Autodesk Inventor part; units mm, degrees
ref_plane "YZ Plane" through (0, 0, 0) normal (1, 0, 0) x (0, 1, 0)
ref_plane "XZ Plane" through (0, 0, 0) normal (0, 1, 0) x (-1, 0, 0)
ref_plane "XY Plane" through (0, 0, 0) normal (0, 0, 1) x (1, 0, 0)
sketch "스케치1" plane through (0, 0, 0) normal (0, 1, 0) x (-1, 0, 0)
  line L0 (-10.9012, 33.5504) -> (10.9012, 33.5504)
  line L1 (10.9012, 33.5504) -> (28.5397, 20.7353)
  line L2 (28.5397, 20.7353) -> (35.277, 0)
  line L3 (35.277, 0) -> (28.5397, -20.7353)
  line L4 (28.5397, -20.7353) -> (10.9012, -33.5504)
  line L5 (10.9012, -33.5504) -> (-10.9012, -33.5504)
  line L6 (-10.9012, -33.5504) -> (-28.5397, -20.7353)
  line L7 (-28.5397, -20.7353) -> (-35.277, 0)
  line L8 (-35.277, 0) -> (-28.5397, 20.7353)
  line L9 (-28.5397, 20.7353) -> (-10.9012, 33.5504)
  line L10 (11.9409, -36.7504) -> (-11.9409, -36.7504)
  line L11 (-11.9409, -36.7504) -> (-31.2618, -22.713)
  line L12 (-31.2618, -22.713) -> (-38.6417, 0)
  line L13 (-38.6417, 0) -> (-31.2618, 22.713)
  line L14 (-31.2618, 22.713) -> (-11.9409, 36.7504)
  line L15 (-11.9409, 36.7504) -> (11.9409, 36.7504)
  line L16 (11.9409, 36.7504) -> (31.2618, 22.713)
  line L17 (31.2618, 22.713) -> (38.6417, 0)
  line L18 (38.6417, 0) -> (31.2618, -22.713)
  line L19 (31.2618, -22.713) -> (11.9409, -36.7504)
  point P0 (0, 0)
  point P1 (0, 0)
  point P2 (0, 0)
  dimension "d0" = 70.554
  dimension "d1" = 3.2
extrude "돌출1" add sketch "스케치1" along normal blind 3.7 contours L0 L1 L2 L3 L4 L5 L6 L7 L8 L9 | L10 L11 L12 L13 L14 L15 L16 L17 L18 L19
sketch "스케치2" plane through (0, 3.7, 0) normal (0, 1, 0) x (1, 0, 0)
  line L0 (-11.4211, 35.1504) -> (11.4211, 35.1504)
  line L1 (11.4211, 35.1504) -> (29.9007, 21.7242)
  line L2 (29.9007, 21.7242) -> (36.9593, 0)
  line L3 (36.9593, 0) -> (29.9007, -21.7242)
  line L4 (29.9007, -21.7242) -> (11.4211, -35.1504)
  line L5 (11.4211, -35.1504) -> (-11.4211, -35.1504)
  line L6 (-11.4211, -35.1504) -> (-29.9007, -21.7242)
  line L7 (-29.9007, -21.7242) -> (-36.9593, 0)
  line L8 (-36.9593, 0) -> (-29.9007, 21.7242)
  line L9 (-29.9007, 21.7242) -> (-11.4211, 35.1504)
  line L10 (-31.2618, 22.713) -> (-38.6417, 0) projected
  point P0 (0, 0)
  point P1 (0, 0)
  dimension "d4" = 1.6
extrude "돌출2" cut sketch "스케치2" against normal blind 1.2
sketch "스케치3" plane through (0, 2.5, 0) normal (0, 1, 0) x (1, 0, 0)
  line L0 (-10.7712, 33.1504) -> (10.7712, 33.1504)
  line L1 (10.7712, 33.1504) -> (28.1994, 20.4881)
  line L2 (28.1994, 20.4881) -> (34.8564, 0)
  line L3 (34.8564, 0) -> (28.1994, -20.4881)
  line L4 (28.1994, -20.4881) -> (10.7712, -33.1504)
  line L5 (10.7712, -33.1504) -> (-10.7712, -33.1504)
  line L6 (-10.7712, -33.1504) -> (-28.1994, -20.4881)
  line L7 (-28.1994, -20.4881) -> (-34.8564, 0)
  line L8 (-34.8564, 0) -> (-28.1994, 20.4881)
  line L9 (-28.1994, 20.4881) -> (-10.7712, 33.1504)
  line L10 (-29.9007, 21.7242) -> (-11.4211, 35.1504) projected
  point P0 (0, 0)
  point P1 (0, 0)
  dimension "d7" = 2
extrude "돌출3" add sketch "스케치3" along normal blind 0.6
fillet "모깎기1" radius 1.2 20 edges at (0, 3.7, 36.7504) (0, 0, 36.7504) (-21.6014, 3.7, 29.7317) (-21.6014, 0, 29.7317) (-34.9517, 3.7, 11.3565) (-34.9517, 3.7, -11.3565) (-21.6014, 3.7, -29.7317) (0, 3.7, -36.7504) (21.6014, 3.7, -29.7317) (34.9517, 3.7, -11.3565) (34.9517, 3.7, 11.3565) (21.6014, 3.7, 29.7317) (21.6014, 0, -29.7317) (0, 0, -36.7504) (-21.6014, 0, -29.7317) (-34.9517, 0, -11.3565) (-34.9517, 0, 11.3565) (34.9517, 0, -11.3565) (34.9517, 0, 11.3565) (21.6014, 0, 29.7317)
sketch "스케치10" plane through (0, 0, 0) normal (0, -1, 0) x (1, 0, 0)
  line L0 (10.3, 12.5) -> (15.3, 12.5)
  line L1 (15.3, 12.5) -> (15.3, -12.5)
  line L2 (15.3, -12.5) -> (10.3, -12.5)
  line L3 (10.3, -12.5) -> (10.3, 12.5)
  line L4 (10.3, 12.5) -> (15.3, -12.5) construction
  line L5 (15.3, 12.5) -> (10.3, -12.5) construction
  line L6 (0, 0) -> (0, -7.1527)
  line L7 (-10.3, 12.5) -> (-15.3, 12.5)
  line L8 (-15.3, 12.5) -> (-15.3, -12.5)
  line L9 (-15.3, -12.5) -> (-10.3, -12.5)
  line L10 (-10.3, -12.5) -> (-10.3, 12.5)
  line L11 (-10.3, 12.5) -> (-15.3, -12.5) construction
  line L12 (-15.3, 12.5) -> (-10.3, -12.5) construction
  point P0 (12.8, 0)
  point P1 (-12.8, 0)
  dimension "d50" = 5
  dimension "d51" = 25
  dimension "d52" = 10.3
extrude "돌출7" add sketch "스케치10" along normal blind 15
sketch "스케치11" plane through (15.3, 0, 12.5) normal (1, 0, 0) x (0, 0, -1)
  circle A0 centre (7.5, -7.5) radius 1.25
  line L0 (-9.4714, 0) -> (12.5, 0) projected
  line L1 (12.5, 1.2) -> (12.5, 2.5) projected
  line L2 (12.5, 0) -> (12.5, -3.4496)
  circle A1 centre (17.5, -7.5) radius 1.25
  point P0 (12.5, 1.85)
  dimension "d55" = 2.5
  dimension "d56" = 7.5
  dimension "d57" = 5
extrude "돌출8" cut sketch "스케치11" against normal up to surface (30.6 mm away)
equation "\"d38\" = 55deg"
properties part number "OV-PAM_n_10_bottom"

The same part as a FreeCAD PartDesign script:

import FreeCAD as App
import Part
import Sketcher
from FreeCAD import Vector
Q = App.Units.Quantity


def edges_at(feature, points):
    """Names of the edges that pass closest to the given points."""
    edges = feature.Shape.Edges
    near = lambda p: min(range(len(edges)), key=lambda i: edges[i].distToShape(Part.Vertex(*p))[0])
    return sorted({f"Edge{near(p) + 1}" for p in points})

doc = App.newDocument("Part")
params = doc.addObject("Spreadsheet::Sheet", "Params")
for row, (alias, value) in enumerate([
    ("pad1_length", "3.7 mm"),
    ("pocket1_length", "1.2 mm"),
    ("pad2_length", "0.6 mm"),
    ("fillet_radius", "1.2 mm"),
    ("sketch4_width", "5 mm"),
    ("sketch4_height", "25 mm"),
    ("pad3_length", "15 mm"),
    ("sketch5_diameter", "2.5 mm"),
    ("pocket2_length", "30.6 mm"),
], start=1):
    params.set(f"A{row}", alias)
    params.set(f"B{row}", "=" + value)
    params.setAlias(f"B{row}", alias)

body = doc.addObject("PartDesign::Body", "Body")

# Sketch on XZ plane
sketch1 = body.newObject("Sketcher::SketchObject", "Sketch")
sketch1.AttachmentSupport = (doc.getObject("XZ_Plane"), [""])
sketch1.MapMode = "FlatFace"
sketch1.addGeometry([
    Part.LineSegment(Vector(12, -37, 0), Vector(-12, -37, 0)),  # 0
    Part.LineSegment(Vector(-12, -37, 0), Vector(-31, -23, 0)),  # 1
    Part.LineSegment(Vector(-31, -23, 0), Vector(-39, 0, 0)),  # 2
    Part.LineSegment(Vector(-39, 0, 0), Vector(-31, 23, 0)),  # 3
    Part.LineSegment(Vector(-31, 23, 0), Vector(-12, 37, 0)),  # 4
    Part.LineSegment(Vector(-12, 37, 0), Vector(12, 37, 0)),  # 5
    Part.LineSegment(Vector(12, 37, 0), Vector(31, 23, 0)),  # 6
    Part.LineSegment(Vector(31, 23, 0), Vector(39, 0, 0)),  # 7
    Part.LineSegment(Vector(39, 0, 0), Vector(31, -23, 0)),  # 8
    Part.LineSegment(Vector(31, -23, 0), Vector(12, -37, 0)),  # 9
], False)
sketch1.addConstraint([
    Sketcher.Constraint("Coincident", 0, 2, 1, 1),
    Sketcher.Constraint("Coincident", 1, 2, 2, 1),
    Sketcher.Constraint("Coincident", 2, 2, 3, 1),
    Sketcher.Constraint("Coincident", 3, 2, 4, 1),
    Sketcher.Constraint("Coincident", 4, 2, 5, 1),
    Sketcher.Constraint("Coincident", 5, 2, 6, 1),
    Sketcher.Constraint("Coincident", 6, 2, 7, 1),
    Sketcher.Constraint("Coincident", 7, 2, 8, 1),
    Sketcher.Constraint("Coincident", 8, 2, 9, 1),
    Sketcher.Constraint("Coincident", 9, 2, 0, 1),
    Sketcher.Constraint("Horizontal", 0),
    Sketcher.Constraint("Horizontal", 5),
    Sketcher.Constraint("Symmetric", 0, 2, 5, 2, -1, 1),
    Sketcher.Constraint("Symmetric", 1, 2, 6, 2, -1, 1),
    Sketcher.Constraint("Symmetric", 2, 2, 7, 2, -1, 1),
    Sketcher.Constraint("Symmetric", 3, 2, 8, 2, -1, 1),
    Sketcher.Constraint("Symmetric", 3, 2, 6, 2, -2),
    Sketcher.Constraint("PointOnObject", 2, 2, -1),
    Sketcher.Constraint("Parallel", 4, 9),
    Sketcher.Constraint("Vertical", 0, 2, 4, 2),
    Sketcher.Constraint("Equal", 1, 2),
    Sketcher.Constraint("Angle", 1, Q("144 deg")),
    Sketcher.Constraint("Angle", 2, Q("108 deg")),
    Sketcher.Constraint("DistanceX", 2, 2, 1, 2, 7.38),
    Sketcher.Constraint("DistanceX", 0, 2, 0, 1, 23.8818),
])
pad1 = body.newObject("PartDesign::Pad", "Pad")
pad1.Profile = sketch1
pad1.setExpression("Length", "Params.pad1_length")
pad1.Reversed = True

# Sketch on XZ plane
sketch2 = body.newObject("Sketcher::SketchObject", "Sketch001")
sketch2.AttachmentSupport = (doc.getObject("XZ_Plane"), [""])
sketch2.MapMode = "FlatFace"
sketch2.AttachmentOffset = App.Placement(Vector(0, 0, -3.7), App.Rotation())
sketch2.addGeometry([
    Part.LineSegment(Vector(11, -35, 0), Vector(-11, -35, 0)),  # 0
    Part.LineSegment(Vector(-11, -35, 0), Vector(-30, -22, 0)),  # 1
    Part.LineSegment(Vector(-30, -22, 0), Vector(-37, 0, 0)),  # 2
    Part.LineSegment(Vector(-37, 0, 0), Vector(-30, 22, 0)),  # 3
    Part.LineSegment(Vector(-30, 22, 0), Vector(-11, 35, 0)),  # 4
    Part.LineSegment(Vector(-11, 35, 0), Vector(11, 35, 0)),  # 5
    Part.LineSegment(Vector(11, 35, 0), Vector(30, 22, 0)),  # 6
    Part.LineSegment(Vector(30, 22, 0), Vector(37, 0, 0)),  # 7
    Part.LineSegment(Vector(37, 0, 0), Vector(30, -22, 0)),  # 8
    Part.LineSegment(Vector(30, -22, 0), Vector(11, -35, 0)),  # 9
], False)
sketch2.addConstraint([
    Sketcher.Constraint("Coincident", 0, 2, 1, 1),
    Sketcher.Constraint("Coincident", 1, 2, 2, 1),
    Sketcher.Constraint("Coincident", 2, 2, 3, 1),
    Sketcher.Constraint("Coincident", 3, 2, 4, 1),
    Sketcher.Constraint("Coincident", 4, 2, 5, 1),
    Sketcher.Constraint("Coincident", 5, 2, 6, 1),
    Sketcher.Constraint("Coincident", 6, 2, 7, 1),
    Sketcher.Constraint("Coincident", 7, 2, 8, 1),
    Sketcher.Constraint("Coincident", 8, 2, 9, 1),
    Sketcher.Constraint("Coincident", 9, 2, 0, 1),
    Sketcher.Constraint("Horizontal", 0),
    Sketcher.Constraint("Horizontal", 5),
    Sketcher.Constraint("Symmetric", 0, 2, 5, 2, -1, 1),
    Sketcher.Constraint("Symmetric", 1, 2, 6, 2, -1, 1),
    Sketcher.Constraint("Symmetric", 2, 2, 7, 2, -1, 1),
    Sketcher.Constraint("Symmetric", 3, 2, 8, 2, -1, 1),
    Sketcher.Constraint("Symmetric", 3, 2, 6, 2, -2),
    Sketcher.Constraint("PointOnObject", 2, 2, -1),
    Sketcher.Constraint("Parallel", 4, 9),
    Sketcher.Constraint("Vertical", 0, 2, 4, 2),
    Sketcher.Constraint("Equal", 1, 2),
    Sketcher.Constraint("Angle", 1, Q("144 deg")),
    Sketcher.Constraint("Angle", 2, Q("108 deg")),
    Sketcher.Constraint("DistanceX", 2, 2, 6, 2, 66.86),
    Sketcher.Constraint("Distance", 1, 22.842),
])
pocket1 = body.newObject("PartDesign::Pocket", "Pocket")
pocket1.Profile = sketch2
pocket1.setExpression("Length", "Params.pocket1_length")
pocket1.Reversed = True

# Sketch on XZ plane
sketch3 = body.newObject("Sketcher::SketchObject", "Sketch002")
sketch3.AttachmentSupport = (doc.getObject("XZ_Plane"), [""])
sketch3.MapMode = "FlatFace"
sketch3.AttachmentOffset = App.Placement(Vector(0, 0, -2.5), App.Rotation())
sketch3.addGeometry([
    Part.LineSegment(Vector(11, -33, 0), Vector(-11, -33, 0)),  # 0
    Part.LineSegment(Vector(-11, -33, 0), Vector(-28, -20, 0)),  # 1
    Part.LineSegment(Vector(-28, -20, 0), Vector(-35, 0, 0)),  # 2
    Part.LineSegment(Vector(-35, 0, 0), Vector(-28, 20, 0)),  # 3
    Part.LineSegment(Vector(-28, 20, 0), Vector(-11, 33, 0)),  # 4
    Part.LineSegment(Vector(-11, 33, 0), Vector(11, 33, 0)),  # 5
    Part.LineSegment(Vector(11, 33, 0), Vector(28, 20, 0)),  # 6
    Part.LineSegment(Vector(28, 20, 0), Vector(35, 0, 0)),  # 7
    Part.LineSegment(Vector(35, 0, 0), Vector(28, -20, 0)),  # 8
    Part.LineSegment(Vector(28, -20, 0), Vector(11, -33, 0)),  # 9
], False)
sketch3.addConstraint([
    Sketcher.Constraint("Coincident", 0, 2, 1, 1),
    Sketcher.Constraint("Coincident", 1, 2, 2, 1),
    Sketcher.Constraint("Coincident", 2, 2, 3, 1),
    Sketcher.Constraint("Coincident", 3, 2, 4, 1),
    Sketcher.Constraint("Coincident", 4, 2, 5, 1),
    Sketcher.Constraint("Coincident", 5, 2, 6, 1),
    Sketcher.Constraint("Coincident", 6, 2, 7, 1),
    Sketcher.Constraint("Coincident", 7, 2, 8, 1),
    Sketcher.Constraint("Coincident", 8, 2, 9, 1),
    Sketcher.Constraint("Coincident", 9, 2, 0, 1),
    Sketcher.Constraint("Horizontal", 0),
    Sketcher.Constraint("Horizontal", 5),
    Sketcher.Constraint("Symmetric", 0, 2, 5, 2, -1, 1),
    Sketcher.Constraint("Symmetric", 1, 2, 6, 2, -1, 1),
    Sketcher.Constraint("Symmetric", 2, 2, 7, 2, -1, 1),
    Sketcher.Constraint("Symmetric", 3, 2, 8, 2, -1, 1),
    Sketcher.Constraint("Symmetric", 3, 2, 6, 2, -2),
    Sketcher.Constraint("PointOnObject", 2, 2, -1),
    Sketcher.Constraint("Parallel", 4, 9),
    Sketcher.Constraint("Vertical", 0, 2, 4, 2),
    Sketcher.Constraint("Equal", 1, 2),
    Sketcher.Constraint("Angle", 1, Q("144 deg")),
    Sketcher.Constraint("Angle", 2, Q("108 deg")),
    Sketcher.Constraint("DistanceX", 0, 2, 0, 1, 21.5424),
    Sketcher.Constraint("DistanceY", 1, 2, -1, 1, 20.488),
])
pad2 = body.newObject("PartDesign::Pad", "Pad001")
pad2.Profile = sketch3
pad2.setExpression("Length", "Params.pad2_length")
pad2.Reversed = True
doc.recompute()

fillet = body.newObject("PartDesign::Fillet", "Fillet")
fillet.Base = (pad2, edges_at(pad2, [
    (0, 3.7, 36.75),
    (0, 0, 36.75),
    (-21.601, 3.7, 29.732),
    (-21.601, 0, 29.732),
    (-34.952, 3.7, 11.357),
    (-34.952, 3.7, -11.357),
    (-21.601, 3.7, -29.732),
    (0, 3.7, -36.75),
    (21.601, 3.7, -29.732),
    (34.952, 3.7, -11.357),
    (34.952, 3.7, 11.357),
    (21.601, 3.7, 29.732),
    (21.601, 0, -29.732),
    (0, 0, -36.75),
    (-21.601, 0, -29.732),
    (-34.952, 0, -11.357),
    (-34.952, 0, 11.357),
    (34.952, 0, -11.357),
    (34.952, 0, 11.357),
    (21.601, 0, 29.732),
]))
fillet.setExpression("Radius", "Params.fillet_radius")

# Sketch on XZ plane
sketch4 = body.newObject("Sketcher::SketchObject", "Sketch003")
sketch4.AttachmentSupport = (doc.getObject("XZ_Plane"), [""])
sketch4.MapMode = "FlatFace"
sketch4.addGeometry([
    Part.LineSegment(Vector(15, 12, 0), Vector(10, 12, 0)),  # 0
    Part.LineSegment(Vector(10, 12, 0), Vector(10, -12, 0)),  # 1
    Part.LineSegment(Vector(10, -12, 0), Vector(15, -12, 0)),  # 2
    Part.LineSegment(Vector(15, -12, 0), Vector(15, 12, 0)),  # 3
    Part.LineSegment(Vector(-10, -12, 0), Vector(-10, 12, 0)),  # 4
    Part.LineSegment(Vector(-10, 12, 0), Vector(-15, 12, 0)),  # 5
    Part.LineSegment(Vector(-15, 12, 0), Vector(-15, -12, 0)),  # 6
    Part.LineSegment(Vector(-15, -12, 0), Vector(-10, -12, 0)),  # 7
], False)
sketch4.addConstraint([
    Sketcher.Constraint("Coincident", 0, 2, 1, 1),
    Sketcher.Constraint("Coincident", 1, 2, 2, 1),
    Sketcher.Constraint("Coincident", 2, 2, 3, 1),
    Sketcher.Constraint("Coincident", 3, 2, 0, 1),
    Sketcher.Constraint("Coincident", 4, 2, 5, 1),
    Sketcher.Constraint("Coincident", 5, 2, 6, 1),
    Sketcher.Constraint("Coincident", 6, 2, 7, 1),
    Sketcher.Constraint("Coincident", 7, 2, 4, 1),
    Sketcher.Constraint("Horizontal", 0),
    Sketcher.Constraint("Vertical", 1),
    Sketcher.Constraint("Horizontal", 2),
    Sketcher.Constraint("Vertical", 3),
    Sketcher.Constraint("Vertical", 4),
    Sketcher.Constraint("Horizontal", 5),
    Sketcher.Constraint("Vertical", 6),
    Sketcher.Constraint("Horizontal", 7),
    Sketcher.Constraint("Symmetric", 1, 2, 4, 2, -1, 1),
    Sketcher.Constraint("Symmetric", 3, 2, 6, 2, -1, 1),
    Sketcher.Constraint("Horizontal", 3, 2, 4, 2),
    Sketcher.Constraint("DistanceX", 0, 2, 0, 1, 5.0),
    Sketcher.Constraint("DistanceY", 1, 2, 1, 1, 25.0),
    Sketcher.Constraint("DistanceX", -1, 1, 0, 2, 10.3),
])
sketch4.setExpression("Constraints[19]", "Params.sketch4_width")
sketch4.setExpression("Constraints[20]", "Params.sketch4_height")
pad3 = body.newObject("PartDesign::Pad", "Pad002")
pad3.Profile = sketch4
pad3.setExpression("Length", "Params.pad3_length")

# Sketch on YZ plane
sketch5 = body.newObject("Sketcher::SketchObject", "Sketch004")
sketch5.AttachmentSupport = (doc.getObject("YZ_Plane"), [""])
sketch5.MapMode = "FlatFace"
sketch5.AttachmentOffset = App.Placement(Vector(0, 0, 15.3), App.Rotation())
sketch5.addGeometry([
    Part.Circle(Vector(-7.5, 5, 0), Vector(0, 0, 1), 1.2),
    Part.Circle(Vector(-7.5, -5, 0), Vector(0, 0, 1), 1.2),
], False)
sketch5.addConstraint([
    Sketcher.Constraint("Equal", 0, 1),
    Sketcher.Constraint("Symmetric", 0, 3, 1, 3, -1),
    Sketcher.Constraint("Diameter", 0, 2.5),
    Sketcher.Constraint("DistanceY", -1, 1, 0, 3, 5.0),
    Sketcher.Constraint("DistanceX", 0, 3, -1, 1, 7.5),
])
sketch5.setExpression("Constraints[2]", "Params.sketch5_diameter")
pocket2 = body.newObject("PartDesign::Pocket", "Pocket001")
pocket2.Profile = sketch5
pocket2.setExpression("Length", "Params.pocket2_length")

doc.recompute()
